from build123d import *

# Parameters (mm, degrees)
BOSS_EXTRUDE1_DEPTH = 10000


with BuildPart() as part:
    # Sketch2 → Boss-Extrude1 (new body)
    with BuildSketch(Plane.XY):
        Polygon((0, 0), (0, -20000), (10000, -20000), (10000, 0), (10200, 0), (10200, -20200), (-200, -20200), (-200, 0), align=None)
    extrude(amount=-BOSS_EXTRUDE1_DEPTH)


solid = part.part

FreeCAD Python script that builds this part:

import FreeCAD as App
import Part
import Sketcher

V = App.Vector
Q = App.Units.Quantity

doc = App.newDocument("Part")
params = doc.addObject("Spreadsheet::Sheet", "Params")
for row, (alias, value) in enumerate([
    ("sketch1_width", "200 mm"),
    ("sketch1_width2", "10400 mm"),
    ("sketch1_height", "20000 mm"),
    ("sketch1_height2", "20200 mm"),
    ("pad1_length", "10000 mm"),
], start=1):
    params.set(f"A{row}", alias)
    params.set(f"B{row}", "=" + value)
    params.setAlias(f"B{row}", alias)

body = doc.addObject("PartDesign::Body", "Body")

# Sketch on XY plane
sketch1 = doc.addObject("Sketcher::SketchObject", "Sketch")
body.addObject(sketch1)
sketch1.AttachmentSupport = (doc.XY_Plane, [""])
sketch1.MapMode = "FlatFace"
sketch1.addGeometry([
    Part.LineSegment(V(0, -20000, 0), V(0, 0, 0)),  # 0
    Part.LineSegment(V(0, 0, 0), V(-200, 0, 0)),  # 1
    Part.LineSegment(V(-200, 0, 0), V(-200, -20200, 0)),  # 2
    Part.LineSegment(V(-200, -20200, 0), V(10200, -20200, 0)),  # 3
    Part.LineSegment(V(10200, -20200, 0), V(10200, 0, 0)),  # 4
    Part.LineSegment(V(10200, 0, 0), V(10000, 0, 0)),  # 5
    Part.LineSegment(V(10000, 0, 0), V(10000, -20000, 0)),  # 6
    Part.LineSegment(V(10000, -20000, 0), V(0, -20000, 0)),  # 7
], False)
sketch1.addConstraint([
    Sketcher.Constraint("Coincident", 0, 2, 1, 1),
    Sketcher.Constraint("Coincident", 1, 2, 2, 1),
    Sketcher.Constraint("Coincident", 2, 2, 3, 1),
    Sketcher.Constraint("Coincident", 3, 2, 4, 1),
    Sketcher.Constraint("Coincident", 4, 2, 5, 1),
    Sketcher.Constraint("Coincident", 5, 2, 6, 1),
    Sketcher.Constraint("Coincident", 6, 2, 7, 1),
    Sketcher.Constraint("Coincident", 7, 2, 0, 1),
    Sketcher.Constraint("Vertical", 0),
    Sketcher.Constraint("Horizontal", 1),
    Sketcher.Constraint("Vertical", 2),
    Sketcher.Constraint("Horizontal", 3),
    Sketcher.Constraint("Vertical", 4),
    Sketcher.Constraint("Horizontal", 5),
    Sketcher.Constraint("Vertical", 6),
    Sketcher.Constraint("Horizontal", 7),
    Sketcher.Constraint("Coincident", 0, 2, -1, 1),
    Sketcher.Constraint("PointOnObject", 4, 2, -1),
    Sketcher.Constraint("Equal", 1, 5),
    Sketcher.Constraint("DistanceX", 1, 2, 1, 1, Q("200 mm")),
    Sketcher.Constraint("DistanceX", 3, 1, 3, 2, Q("10400 mm")),
    Sketcher.Constraint("DistanceY", 0, 1, 0, 2, Q("20000 mm")),
    Sketcher.Constraint("DistanceY", 2, 2, 2, 1, Q("20200 mm")),
])
sketch1.setExpression("Constraints[19]", "Params.sketch1_width")
sketch1.setExpression("Constraints[20]", "Params.sketch1_width2")
sketch1.setExpression("Constraints[21]", "Params.sketch1_height")
sketch1.setExpression("Constraints[22]", "Params.sketch1_height2")
pad1 = doc.addObject("PartDesign::Pad", "Pad")
body.addObject(pad1)
pad1.Profile = sketch1
pad1.setExpression("Length", "Params.pad1_length")
pad1.Reversed = True

doc.recompute()
